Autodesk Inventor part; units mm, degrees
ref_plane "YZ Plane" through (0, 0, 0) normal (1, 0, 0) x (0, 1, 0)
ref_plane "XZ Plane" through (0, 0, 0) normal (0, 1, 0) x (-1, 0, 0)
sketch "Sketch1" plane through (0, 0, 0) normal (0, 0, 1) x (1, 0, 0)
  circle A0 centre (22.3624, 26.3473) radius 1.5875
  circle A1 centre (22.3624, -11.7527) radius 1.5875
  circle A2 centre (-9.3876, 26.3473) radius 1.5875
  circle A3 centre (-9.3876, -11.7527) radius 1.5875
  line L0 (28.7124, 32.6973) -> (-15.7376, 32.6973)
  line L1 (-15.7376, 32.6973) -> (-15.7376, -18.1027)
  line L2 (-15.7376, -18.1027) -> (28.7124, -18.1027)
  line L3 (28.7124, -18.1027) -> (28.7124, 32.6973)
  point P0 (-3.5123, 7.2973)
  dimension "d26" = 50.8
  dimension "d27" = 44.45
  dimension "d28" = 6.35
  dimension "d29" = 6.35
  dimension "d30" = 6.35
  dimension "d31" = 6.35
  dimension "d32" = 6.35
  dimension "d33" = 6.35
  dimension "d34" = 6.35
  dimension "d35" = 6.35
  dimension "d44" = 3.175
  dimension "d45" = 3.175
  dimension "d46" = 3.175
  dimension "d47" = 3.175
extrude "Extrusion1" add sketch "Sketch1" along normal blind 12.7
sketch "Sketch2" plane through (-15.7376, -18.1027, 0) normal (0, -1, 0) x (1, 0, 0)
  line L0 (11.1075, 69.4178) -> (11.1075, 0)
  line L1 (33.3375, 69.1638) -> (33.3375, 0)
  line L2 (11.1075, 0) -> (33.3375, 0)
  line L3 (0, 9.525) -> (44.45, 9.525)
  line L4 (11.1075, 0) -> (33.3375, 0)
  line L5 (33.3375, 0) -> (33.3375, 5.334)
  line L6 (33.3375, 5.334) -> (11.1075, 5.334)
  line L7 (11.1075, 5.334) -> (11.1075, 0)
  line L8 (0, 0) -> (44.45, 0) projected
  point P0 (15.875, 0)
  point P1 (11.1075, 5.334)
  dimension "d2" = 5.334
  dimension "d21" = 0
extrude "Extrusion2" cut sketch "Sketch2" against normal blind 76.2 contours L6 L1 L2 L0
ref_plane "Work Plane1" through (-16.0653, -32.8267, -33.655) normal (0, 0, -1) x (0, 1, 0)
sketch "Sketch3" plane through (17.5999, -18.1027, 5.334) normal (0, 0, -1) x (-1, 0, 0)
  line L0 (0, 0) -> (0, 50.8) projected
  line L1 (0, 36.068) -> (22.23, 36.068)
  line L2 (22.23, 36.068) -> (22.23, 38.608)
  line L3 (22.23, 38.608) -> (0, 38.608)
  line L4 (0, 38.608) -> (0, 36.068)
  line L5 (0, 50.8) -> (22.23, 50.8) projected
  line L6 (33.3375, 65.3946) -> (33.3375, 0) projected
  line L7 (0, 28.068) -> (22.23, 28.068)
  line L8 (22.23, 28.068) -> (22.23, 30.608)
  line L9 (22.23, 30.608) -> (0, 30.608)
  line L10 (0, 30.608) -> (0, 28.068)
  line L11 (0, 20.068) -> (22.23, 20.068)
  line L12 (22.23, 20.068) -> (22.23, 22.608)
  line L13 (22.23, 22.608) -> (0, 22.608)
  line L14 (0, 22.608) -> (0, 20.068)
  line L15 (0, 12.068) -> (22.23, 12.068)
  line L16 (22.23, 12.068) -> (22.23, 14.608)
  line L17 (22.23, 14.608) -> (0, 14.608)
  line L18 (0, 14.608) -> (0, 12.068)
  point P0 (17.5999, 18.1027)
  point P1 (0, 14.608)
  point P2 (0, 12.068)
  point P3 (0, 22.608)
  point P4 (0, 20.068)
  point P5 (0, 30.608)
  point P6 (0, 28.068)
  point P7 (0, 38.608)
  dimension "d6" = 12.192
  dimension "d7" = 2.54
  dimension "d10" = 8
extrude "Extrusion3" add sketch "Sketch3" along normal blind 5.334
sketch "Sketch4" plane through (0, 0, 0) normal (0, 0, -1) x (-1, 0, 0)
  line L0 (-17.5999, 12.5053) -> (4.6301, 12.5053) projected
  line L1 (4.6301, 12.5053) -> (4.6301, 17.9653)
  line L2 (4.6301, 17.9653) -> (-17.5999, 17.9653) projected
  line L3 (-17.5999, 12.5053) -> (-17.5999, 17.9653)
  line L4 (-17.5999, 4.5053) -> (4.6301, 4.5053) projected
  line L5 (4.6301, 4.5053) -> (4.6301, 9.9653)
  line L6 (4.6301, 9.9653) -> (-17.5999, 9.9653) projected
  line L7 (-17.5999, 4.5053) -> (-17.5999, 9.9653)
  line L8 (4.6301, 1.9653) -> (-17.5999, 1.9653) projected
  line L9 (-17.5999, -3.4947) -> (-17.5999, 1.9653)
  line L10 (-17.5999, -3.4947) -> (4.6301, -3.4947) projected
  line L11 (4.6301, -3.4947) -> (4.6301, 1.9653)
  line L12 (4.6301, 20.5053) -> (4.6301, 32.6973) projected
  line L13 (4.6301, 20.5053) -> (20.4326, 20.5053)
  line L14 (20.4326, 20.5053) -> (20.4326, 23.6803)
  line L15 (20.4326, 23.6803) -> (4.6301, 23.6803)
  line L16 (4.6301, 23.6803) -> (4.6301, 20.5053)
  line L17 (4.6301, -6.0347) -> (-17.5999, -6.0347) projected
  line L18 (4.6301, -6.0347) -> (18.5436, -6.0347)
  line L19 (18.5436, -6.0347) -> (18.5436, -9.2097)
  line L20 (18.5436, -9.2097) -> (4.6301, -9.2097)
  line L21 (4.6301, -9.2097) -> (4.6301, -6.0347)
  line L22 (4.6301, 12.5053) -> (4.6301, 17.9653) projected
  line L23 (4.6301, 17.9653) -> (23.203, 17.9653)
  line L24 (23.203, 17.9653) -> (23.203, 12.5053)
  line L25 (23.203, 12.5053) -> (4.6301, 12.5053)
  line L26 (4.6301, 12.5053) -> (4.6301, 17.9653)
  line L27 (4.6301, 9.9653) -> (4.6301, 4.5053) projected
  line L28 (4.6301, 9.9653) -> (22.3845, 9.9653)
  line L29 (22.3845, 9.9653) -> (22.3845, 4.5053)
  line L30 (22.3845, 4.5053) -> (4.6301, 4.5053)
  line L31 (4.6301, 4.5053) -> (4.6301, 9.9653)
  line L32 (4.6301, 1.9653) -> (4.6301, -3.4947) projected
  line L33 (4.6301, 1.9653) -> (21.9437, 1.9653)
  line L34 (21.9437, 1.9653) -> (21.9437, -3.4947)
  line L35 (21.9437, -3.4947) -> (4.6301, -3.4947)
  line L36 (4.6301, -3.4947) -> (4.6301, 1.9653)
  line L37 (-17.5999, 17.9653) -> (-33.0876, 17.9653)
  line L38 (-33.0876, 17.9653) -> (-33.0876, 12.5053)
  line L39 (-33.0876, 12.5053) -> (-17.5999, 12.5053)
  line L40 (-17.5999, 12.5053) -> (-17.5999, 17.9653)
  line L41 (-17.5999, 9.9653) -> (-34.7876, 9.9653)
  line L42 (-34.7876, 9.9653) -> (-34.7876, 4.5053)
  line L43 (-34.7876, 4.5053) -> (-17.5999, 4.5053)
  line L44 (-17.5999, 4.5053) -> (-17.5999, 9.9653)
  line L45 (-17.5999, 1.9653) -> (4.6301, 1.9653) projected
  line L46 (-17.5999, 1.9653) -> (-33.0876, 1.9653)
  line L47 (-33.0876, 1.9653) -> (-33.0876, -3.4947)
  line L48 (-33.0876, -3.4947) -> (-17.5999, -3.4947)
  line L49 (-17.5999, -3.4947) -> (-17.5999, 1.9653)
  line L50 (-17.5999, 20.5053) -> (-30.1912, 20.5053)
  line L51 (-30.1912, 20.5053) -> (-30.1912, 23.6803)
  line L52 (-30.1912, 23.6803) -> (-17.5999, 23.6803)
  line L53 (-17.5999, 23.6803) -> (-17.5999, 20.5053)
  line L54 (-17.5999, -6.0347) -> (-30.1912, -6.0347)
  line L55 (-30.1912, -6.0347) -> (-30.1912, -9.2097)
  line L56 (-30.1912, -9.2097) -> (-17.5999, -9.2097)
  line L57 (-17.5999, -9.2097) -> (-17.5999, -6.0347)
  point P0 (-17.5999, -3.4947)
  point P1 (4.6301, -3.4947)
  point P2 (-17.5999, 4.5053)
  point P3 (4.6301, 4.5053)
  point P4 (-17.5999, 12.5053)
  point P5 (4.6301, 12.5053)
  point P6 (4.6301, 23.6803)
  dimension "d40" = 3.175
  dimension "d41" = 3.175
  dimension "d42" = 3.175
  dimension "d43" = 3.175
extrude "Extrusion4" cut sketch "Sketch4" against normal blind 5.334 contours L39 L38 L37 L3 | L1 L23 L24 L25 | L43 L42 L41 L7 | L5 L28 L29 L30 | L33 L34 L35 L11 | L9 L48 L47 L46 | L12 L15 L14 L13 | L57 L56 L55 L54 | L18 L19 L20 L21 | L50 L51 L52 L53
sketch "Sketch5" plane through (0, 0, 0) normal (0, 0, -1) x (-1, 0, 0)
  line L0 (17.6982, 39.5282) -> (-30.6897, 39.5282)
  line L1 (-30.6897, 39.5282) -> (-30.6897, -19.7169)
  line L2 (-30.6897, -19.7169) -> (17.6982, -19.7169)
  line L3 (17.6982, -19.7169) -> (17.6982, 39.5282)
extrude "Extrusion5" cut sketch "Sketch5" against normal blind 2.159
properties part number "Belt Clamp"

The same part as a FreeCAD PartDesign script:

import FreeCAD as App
import Part
import Sketcher
Q = App.Units.Quantity

doc = App.newDocument("Part")
params = doc.addObject("Spreadsheet::Sheet", "Params")
for row, (alias, value) in enumerate([
    ("sketch1_height", "2 in"),
    ("sketch1_diameter", "0.125 in"),
    ("sketch1_width", "1.75 in"),
    ("pad1_length", "0.5 in"),
    ("sketch2_height", "0.21 in"),
    ("pocket1_length", "3 in"),
    ("sketch3_height", "0.1 in"),
    ("pad2_length", "0.21 in"),
    ("sketch4_height", "0.125 in"),
    ("sketch4_width", "0.699 in"),
    ("pocket2_length", "0.21 in"),
    ("pocket3_length", "0.085 in"),
], start=1):
    params.set(f"A{row}", alias)
    params.set(f"B{row}", "=" + value)
    params.setAlias(f"B{row}", alias)

body = doc.addObject("PartDesign::Body", "Body")

# Sketch on XY plane
sketch1 = doc.addObject("Sketcher::SketchObject", "Sketch")
body.addObject(sketch1)
sketch1.AttachmentSupport = (doc.XY_Plane, [""])
sketch1.MapMode = "FlatFace"
sketch1.addGeometry(Part.LineSegment(App.Vector(28.7124, -18.1027, 0), App.Vector(28.7124, 32.6973, 0)), False)
sketch1.addGeometry(Part.LineSegment(App.Vector(28.7124, 32.6973, 0), App.Vector(-15.7376, 32.6973, 0)), False)
sketch1.addGeometry(Part.LineSegment(App.Vector(-15.7376, 32.6973, 0), App.Vector(-15.7376, -18.1027, 0)), False)
sketch1.addGeometry(Part.LineSegment(App.Vector(-15.7376, -18.1027, 0), App.Vector(28.7124, -18.1027, 0)), False)
sketch1.addGeometry(Part.Circle(App.Vector(-9.3876, -11.7527, 0), App.Vector(0, 0, 1), 1.5875), False)
sketch1.addGeometry(Part.Circle(App.Vector(22.3624, -11.7527, 0), App.Vector(0, 0, 1), 1.5875), False)
sketch1.addGeometry(Part.Circle(App.Vector(-9.3876, 26.3473, 0), App.Vector(0, 0, 1), 1.5875), False)
sketch1.addGeometry(Part.Circle(App.Vector(22.3624, 26.3473, 0), App.Vector(0, 0, 1), 1.5875), False)
sketch1.addConstraint(Sketcher.Constraint("Coincident", 0, 2, 1, 1))
sketch1.addConstraint(Sketcher.Constraint("Coincident", 1, 2, 2, 1))
sketch1.addConstraint(Sketcher.Constraint("Coincident", 2, 2, 3, 1))
sketch1.addConstraint(Sketcher.Constraint("Coincident", 3, 2, 0, 1))
sketch1.addConstraint(Sketcher.Constraint("Vertical", 0))
sketch1.addConstraint(Sketcher.Constraint("Horizontal", 1))
sketch1.addConstraint(Sketcher.Constraint("Vertical", 2))
sketch1.addConstraint(Sketcher.Constraint("Horizontal", 3))
sketch1.addConstraint(Sketcher.Constraint("Equal", 4, 5))
sketch1.addConstraint(Sketcher.Constraint("Equal", 5, 6))
sketch1.addConstraint(Sketcher.Constraint("Equal", 6, 7))
sketch1.addConstraint(Sketcher.Constraint("Horizontal", 4, 3, 5, 3))
sketch1.addConstraint(Sketcher.Constraint("Horizontal", 6, 3, 7, 3))
sketch1.addConstraint(Sketcher.Constraint("Vertical", 4, 3, 6, 3))
sketch1.addConstraint(Sketcher.Constraint("Vertical", 5, 3, 7, 3))
sketch1.addConstraint(Sketcher.Constraint("DistanceY", 0, 1, 0, 2, Q("2 in")))
sketch1.addConstraint(Sketcher.Constraint("Diameter", 4, Q("0.125 in")))
sketch1.addConstraint(Sketcher.Constraint("DistanceX", 1, 2, 1, 1, Q("1.75 in")))
sketch1.addConstraint(Sketcher.Constraint("DistanceX", 7, 3, 0, 2, Q("0.25 in")))
sketch1.addConstraint(Sketcher.Constraint("DistanceY", 7, 3, 0, 2, Q("0.25 in")))
sketch1.addConstraint(Sketcher.Constraint("DistanceY", 5, 3, 0, 2, Q("1.75 in")))
sketch1.addConstraint(Sketcher.Constraint("DistanceX", 1, 2, 6, 3, Q("0.25 in")))
sketch1.addConstraint(Sketcher.Constraint("DistanceX", 4, 3, -1, 1, Q("0.3696 in")))
sketch1.addConstraint(Sketcher.Constraint("DistanceY", 4, 3, -1, 1, Q("0.4627 in")))
sketch1.setExpression("Constraints[15]", "Params.sketch1_height")
sketch1.setExpression("Constraints[16]", "Params.sketch1_diameter")
sketch1.setExpression("Constraints[17]", "Params.sketch1_width")
pad1 = doc.addObject("PartDesign::Pad", "Pad")
body.addObject(pad1)
pad1.Profile = sketch1
pad1.setExpression("Length", "Params.pad1_length")

# Sketch on XZ plane
sketch2 = doc.addObject("Sketcher::SketchObject", "Sketch001")
body.addObject(sketch2)
sketch2.AttachmentSupport = (doc.XZ_Plane, [""])
sketch2.MapMode = "FlatFace"
sketch2.AttachmentOffset = App.Placement(App.Vector(0, 0, 0.7127047 * 25.4), App.Rotation())
sketch2.addGeometry(Part.LineSegment(App.Vector(17.5999, 5.334, 0), App.Vector(-4.6301, 5.334, 0)), False)
sketch2.addGeometry(Part.LineSegment(App.Vector(-4.6301, 5.334, 0), App.Vector(-4.6301, 0, 0)), False)
sketch2.addGeometry(Part.LineSegment(App.Vector(-4.6301, 0, 0), App.Vector(17.5999, 0, 0)), False)
sketch2.addGeometry(Part.LineSegment(App.Vector(17.5999, 0, 0), App.Vector(17.5999, 5.334, 0)), False)
sketch2.addConstraint(Sketcher.Constraint("Coincident", 0, 2, 1, 1))
sketch2.addConstraint(Sketcher.Constraint("Coincident", 1, 2, 2, 1))
sketch2.addConstraint(Sketcher.Constraint("Coincident", 2, 2, 3, 1))
sketch2.addConstraint(Sketcher.Constraint("Coincident", 3, 2, 0, 1))
sketch2.addConstraint(Sketcher.Constraint("Horizontal", 0))
sketch2.addConstraint(Sketcher.Constraint("Vertical", 1))
sketch2.addConstraint(Sketcher.Constraint("Horizontal", 2))
sketch2.addConstraint(Sketcher.Constraint("Vertical", 3))
sketch2.addConstraint(Sketcher.Constraint("PointOnObject", 1, 2, -1))
sketch2.addConstraint(Sketcher.Constraint("DistanceY", 1, 2, 1, 1, Q("0.21 in")))
sketch2.addConstraint(Sketcher.Constraint("DistanceX", 0, 2, 0, 1, Q("0.8752 in")))
sketch2.addConstraint(Sketcher.Constraint("DistanceX", -1, 1, 2, 2, Q("0.6929 in")))
sketch2.setExpression("Constraints[9]", "Params.sketch2_height")
pocket1 = doc.addObject("PartDesign::Pocket", "Pocket")
body.addObject(pocket1)
pocket1.Profile = sketch2
pocket1.setExpression("Length", "Params.pocket1_length")

# Sketch on XY plane
sketch3 = doc.addObject("Sketcher::SketchObject", "Sketch002")
body.addObject(sketch3)
sketch3.AttachmentSupport = (doc.XY_Plane, [""])
sketch3.MapMode = "FlatFace"
sketch3.AttachmentOffset = App.Placement(App.Vector(0, 0, 0.21 * 25.4), App.Rotation())
sketch3.addGeometry(Part.LineSegment(App.Vector(17.5999, 20.5053, 0), App.Vector(17.5999, 17.9653, 0)), False)
sketch3.addGeometry(Part.LineSegment(App.Vector(17.5999, 17.9653, 0), App.Vector(-4.6301, 17.9653, 0)), False)
sketch3.addGeometry(Part.LineSegment(App.Vector(-4.6301, 17.9653, 0), App.Vector(-4.6301, 20.5053, 0)), False)
sketch3.addGeometry(Part.LineSegment(App.Vector(-4.6301, 20.5053, 0), App.Vector(17.5999, 20.5053, 0)), False)
sketch3.addGeometry(Part.LineSegment(App.Vector(17.5999, 12.5053, 0), App.Vector(17.5999, 9.9653, 0)), False)
sketch3.addGeometry(Part.LineSegment(App.Vector(17.5999, 9.9653, 0), App.Vector(-4.6301, 9.9653, 0)), False)
sketch3.addGeometry(Part.LineSegment(App.Vector(-4.6301, 9.9653, 0), App.Vector(-4.6301, 12.5053, 0)), False)
sketch3.addGeometry(Part.LineSegment(App.Vector(-4.6301, 12.5053, 0), App.Vector(17.5999, 12.5053, 0)), False)
sketch3.addGeometry(Part.LineSegment(App.Vector(17.5999, 4.5053, 0), App.Vector(17.5999, 1.9653, 0)), False)
sketch3.addGeometry(Part.LineSegment(App.Vector(17.5999, 1.9653, 0), App.Vector(-4.6301, 1.9653, 0)), False)
sketch3.addGeometry(Part.LineSegment(App.Vector(-4.6301, 1.9653, 0), App.Vector(-4.6301, 4.5053, 0)), False)
sketch3.addGeometry(Part.LineSegment(App.Vector(-4.6301, 4.5053, 0), App.Vector(17.5999, 4.5053, 0)), False)
sketch3.addGeometry(Part.LineSegment(App.Vector(17.5999, -3.4947, 0), App.Vector(17.5999, -6.0347, 0)), False)
sketch3.addGeometry(Part.LineSegment(App.Vector(17.5999, -6.0347, 0), App.Vector(-4.6301, -6.0347, 0)), False)
sketch3.addGeometry(Part.LineSegment(App.Vector(-4.6301, -6.0347, 0), App.Vector(-4.6301, -3.4947, 0)), False)
sketch3.addGeometry(Part.LineSegment(App.Vector(-4.6301, -3.4947, 0), App.Vector(17.5999, -3.4947, 0)), False)
sketch3.addConstraint(Sketcher.Constraint("Coincident", 0, 2, 1, 1))
sketch3.addConstraint(Sketcher.Constraint("Coincident", 1, 2, 2, 1))
sketch3.addConstraint(Sketcher.Constraint("Coincident", 2, 2, 3, 1))
sketch3.addConstraint(Sketcher.Constraint("Coincident", 3, 2, 0, 1))
sketch3.addConstraint(Sketcher.Constraint("Coincident", 4, 2, 5, 1))
sketch3.addConstraint(Sketcher.Constraint("Coincident", 5, 2, 6, 1))
sketch3.addConstraint(Sketcher.Constraint("Coincident", 6, 2, 7, 1))
sketch3.addConstraint(Sketcher.Constraint("Coincident", 7, 2, 4, 1))
sketch3.addConstraint(Sketcher.Constraint("Coincident", 8, 2, 9, 1))
sketch3.addConstraint(Sketcher.Constraint("Coincident", 9, 2, 10, 1))
sketch3.addConstraint(Sketcher.Constraint("Coincident", 10, 2, 11, 1))
sketch3.addConstraint(Sketcher.Constraint("Coincident", 11, 2, 8, 1))
sketch3.addConstraint(Sketcher.Constraint("Coincident", 12, 2, 13, 1))
sketch3.addConstraint(Sketcher.Constraint("Coincident", 13, 2, 14, 1))
sketch3.addConstraint(Sketcher.Constraint("Coincident", 14, 2, 15, 1))
sketch3.addConstraint(Sketcher.Constraint("Coincident", 15, 2, 12, 1))
sketch3.addConstraint(Sketcher.Constraint("Vertical", 0))
sketch3.addConstraint(Sketcher.Constraint("Horizontal", 1))
sketch3.addConstraint(Sketcher.Constraint("Vertical", 2))
sketch3.addConstraint(Sketcher.Constraint("Horizontal", 3))
sketch3.addConstraint(Sketcher.Constraint("Vertical", 4))
sketch3.addConstraint(Sketcher.Constraint("Horizontal", 5))
sketch3.addConstraint(Sketcher.Constraint("Vertical", 6))
sketch3.addConstraint(Sketcher.Constraint("Horizontal", 7))
sketch3.addConstraint(Sketcher.Constraint("Vertical", 8))
sketch3.addConstraint(Sketcher.Constraint("Horizontal", 9))
sketch3.addConstraint(Sketcher.Constraint("Vertical", 10))
sketch3.addConstraint(Sketcher.Constraint("Horizontal", 11))
sketch3.addConstraint(Sketcher.Constraint("Vertical", 12))
sketch3.addConstraint(Sketcher.Constraint("Horizontal", 13))
sketch3.addConstraint(Sketcher.Constraint("Vertical", 14))
sketch3.addConstraint(Sketcher.Constraint("Horizontal", 15))
sketch3.addConstraint(Sketcher.Constraint("Vertical", 3, 2, 4, 2))
sketch3.addConstraint(Sketcher.Constraint("Vertical", 2, 2, 5, 2))
sketch3.addConstraint(Sketcher.Constraint("Vertical", 7, 2, 8, 2))
sketch3.addConstraint(Sketcher.Constraint("Vertical", 6, 2, 9, 2))
sketch3.addConstraint(Sketcher.Constraint("Vertical", 11, 2, 12, 2))
sketch3.addConstraint(Sketcher.Constraint("Vertical", 10, 2, 13, 2))
sketch3.addConstraint(Sketcher.Constraint("Equal", 2, 4))
sketch3.addConstraint(Sketcher.Constraint("Equal", 6, 8))
sketch3.addConstraint(Sketcher.Constraint("Equal", 10, 12))
sketch3.addConstraint(Sketcher.Constraint("DistanceY", 0, 2, 0, 1, Q("0.1 in")))
sketch3.addConstraint(Sketcher.Constraint("DistanceY", 4, 2, 0, 2, 8.0))
sketch3.addConstraint(Sketcher.Constraint("DistanceY", 8, 2, 4, 2, 8.0))
sketch3.addConstraint(Sketcher.Constraint("DistanceY", 12, 2, 8, 2, 8.0))
sketch3.addConstraint(Sketcher.Constraint("DistanceX", 1, 2, 1, 1, Q("0.8752 in")))
sketch3.addConstraint(Sketcher.Constraint("DistanceX", -1, 1, 0, 2, Q("0.6929 in")))
sketch3.addConstraint(Sketcher.Constraint("DistanceY", -1, 1, 0, 2, Q("0.7073 in")))
sketch3.setExpression("Constraints[41]", "Params.sketch3_height")
pad2 = doc.addObject("PartDesign::Pad", "Pad001")
body.addObject(pad2)
pad2.Profile = sketch3
pad2.setExpression("Length", "Params.pad2_length")
pad2.Reversed = True

# Sketch on XY plane
sketch4 = doc.addObject("Sketcher::SketchObject", "Sketch003")
body.addObject(sketch4)
sketch4.AttachmentSupport = (doc.XY_Plane, [""])
sketch4.MapMode = "FlatFace"
sketch4.addGeometry(Part.LineSegment(App.Vector(33.0876, 12.5053, 0), App.Vector(17.5999, 12.5053, 0)), False)
sketch4.addGeometry(Part.LineSegment(App.Vector(17.5999, 12.5053, 0), App.Vector(17.5999, 17.9653, 0)), False)
sketch4.addGeometry(Part.LineSegment(App.Vector(17.5999, 17.9653, 0), App.Vector(33.0876, 17.9653, 0)), False)
sketch4.addGeometry(Part.LineSegment(App.Vector(33.0876, 17.9653, 0), App.Vector(33.0876, 12.5053, 0)), False)
sketch4.addGeometry(Part.LineSegment(App.Vector(-4.6301, 17.9653, 0), App.Vector(-4.6301, 12.5053, 0)), False)
sketch4.addGeometry(Part.LineSegment(App.Vector(-4.6301, 12.5053, 0), App.Vector(-23.203, 12.5053, 0)), False)
sketch4.addGeometry(Part.LineSegment(App.Vector(-23.203, 12.5053, 0), App.Vector(-23.203, 17.9653, 0)), False)
sketch4.addGeometry(Part.LineSegment(App.Vector(-23.203, 17.9653, 0), App.Vector(-4.6301, 17.9653, 0)), False)
sketch4.addGeometry(Part.LineSegment(App.Vector(34.7876, 4.5053, 0), App.Vector(17.5999, 4.5053, 0)), False)
sketch4.addGeometry(Part.LineSegment(App.Vector(17.5999, 4.5053, 0), App.Vector(17.5999, 9.9653, 0)), False)
sketch4.addGeometry(Part.LineSegment(App.Vector(17.5999, 9.9653, 0), App.Vector(34.7876, 9.9653, 0)), False)
sketch4.addGeometry(Part.LineSegment(App.Vector(34.7876, 9.9653, 0), App.Vector(34.7876, 4.5053, 0)), False)
sketch4.addGeometry(Part.LineSegment(App.Vector(-4.6301, 9.9653, 0), App.Vector(-4.6301, 4.5053, 0)), False)
sketch4.addGeometry(Part.LineSegment(App.Vector(-4.6301, 4.5053, 0), App.Vector(-22.3845, 4.5053, 0)), False)
sketch4.addGeometry(Part.LineSegment(App.Vector(-22.3845, 4.5053, 0), App.Vector(-22.3845, 9.9653, 0)), False)
sketch4.addGeometry(Part.LineSegment(App.Vector(-22.3845, 9.9653, 0), App.Vector(-4.6301, 9.9653, 0)), False)
sketch4.addGeometry(Part.LineSegment(App.Vector(-21.9437, 1.9653, 0), App.Vector(-4.6301, 1.9653, 0)), False)
sketch4.addGeometry(Part.LineSegment(App.Vector(-4.6301, 1.9653, 0), App.Vector(-4.6301, -3.4947, 0)), False)
sketch4.addGeometry(Part.LineSegment(App.Vector(-4.6301, -3.4947, 0), App.Vector(-21.9437, -3.4947, 0)), False)
sketch4.addGeometry(Part.LineSegment(App.Vector(-21.9437, -3.4947, 0), App.Vector(-21.9437, 1.9653, 0)), False)
sketch4.addGeometry(Part.LineSegment(App.Vector(17.5999, -3.4947, 0), App.Vector(17.5999, 1.9653, 0)), False)
sketch4.addGeometry(Part.LineSegment(App.Vector(17.5999, 1.9653, 0), App.Vector(33.0876, 1.9653, 0)), False)
sketch4.addGeometry(Part.LineSegment(App.Vector(33.0876, 1.9653, 0), App.Vector(33.0876, -3.4947, 0)), False)
sketch4.addGeometry(Part.LineSegment(App.Vector(33.0876, -3.4947, 0), App.Vector(17.5999, -3.4947, 0)), False)
sketch4.addGeometry(Part.LineSegment(App.Vector(-4.6301, 23.6803, 0), App.Vector(-4.6301, 20.5053, 0)), False)
sketch4.addGeometry(Part.LineSegment(App.Vector(-4.6301, 20.5053, 0), App.Vector(-20.4326, 20.5053, 0)), False)
sketch4.addGeometry(Part.LineSegment(App.Vector(-20.4326, 20.5053, 0), App.Vector(-20.4326, 23.6803, 0)), False)
sketch4.addGeometry(Part.LineSegment(App.Vector(-20.4326, 23.6803, 0), App.Vector(-4.6301, 23.6803, 0)), False)
sketch4.addGeometry(Part.LineSegment(App.Vector(17.5999, -9.2097, 0), App.Vector(17.5999, -6.0347, 0)), False)
sketch4.addGeometry(Part.LineSegment(App.Vector(17.5999, -6.0347, 0), App.Vector(30.1912, -6.0347, 0)), False)
sketch4.addGeometry(Part.LineSegment(App.Vector(30.1912, -6.0347, 0), App.Vector(30.1912, -9.2097, 0)), False)
sketch4.addGeometry(Part.LineSegment(App.Vector(30.1912, -9.2097, 0), App.Vector(17.5999, -9.2097, 0)), False)
sketch4.addGeometry(Part.LineSegment(App.Vector(-18.5436, -6.0347, 0), App.Vector(-4.6301, -6.0347, 0)), False)
sketch4.addGeometry(Part.LineSegment(App.Vector(-4.6301, -6.0347, 0), App.Vector(-4.6301, -9.2097, 0)), False)
sketch4.addGeometry(Part.LineSegment(App.Vector(-4.6301, -9.2097, 0), App.Vector(-18.5436, -9.2097, 0)), False)
sketch4.addGeometry(Part.LineSegment(App.Vector(-18.5436, -9.2097, 0), App.Vector(-18.5436, -6.0347, 0)), False)
sketch4.addGeometry(Part.LineSegment(App.Vector(30.1912, 20.5053, 0), App.Vector(17.5999, 20.5053, 0)), False)
sketch4.addGeometry(Part.LineSegment(App.Vector(17.5999, 20.5053, 0), App.Vector(17.5999, 23.6803, 0)), False)
sketch4.addGeometry(Part.LineSegment(App.Vector(17.5999, 23.6803, 0), App.Vector(30.1912, 23.6803, 0)), False)
sketch4.addGeometry(Part.LineSegment(App.Vector(30.1912, 23.6803, 0), App.Vector(30.1912, 20.5053, 0)), False)
sketch4.addConstraint(Sketcher.Constraint("Coincident", 0, 2, 1, 1))
sketch4.addConstraint(Sketcher.Constraint("Coincident", 1, 2, 2, 1))
sketch4.addConstraint(Sketcher.Constraint("Coincident", 2, 2, 3, 1))
sketch4.addConstraint(Sketcher.Constraint("Coincident", 3, 2, 0, 1))
sketch4.addConstraint(Sketcher.Constraint("Coincident", 4, 2, 5, 1))
sketch4.addConstraint(Sketcher.Constraint("Coincident", 5, 2, 6, 1))
sketch4.addConstraint(Sketcher.Constraint("Coincident", 6, 2, 7, 1))
sketch4.addConstraint(Sketcher.Constraint("Coincident", 7, 2, 4, 1))
sketch4.addConstraint(Sketcher.Constraint("Coincident", 8, 2, 9, 1))
sketch4.addConstraint(Sketcher.Constraint("Coincident", 9, 2, 10, 1))
sketch4.addConstraint(Sketcher.Constraint("Coincident", 10, 2, 11, 1))
sketch4.addConstraint(Sketcher.Constraint("Coincident", 11, 2, 8, 1))
sketch4.addConstraint(Sketcher.Constraint("Coincident", 12, 2, 13, 1))
sketch4.addConstraint(Sketcher.Constraint("Coincident", 13, 2, 14, 1))
sketch4.addConstraint(Sketcher.Constraint("Coincident", 14, 2, 15, 1))
sketch4.addConstraint(Sketcher.Constraint("Coincident", 15, 2, 12, 1))
sketch4.addConstraint(Sketcher.Constraint("Coincident", 16, 2, 17, 1))
sketch4.addConstraint(Sketcher.Constraint("Coincident", 17, 2, 18, 1))
sketch4.addConstraint(Sketcher.Constraint("Coincident", 18, 2, 19, 1))
sketch4.addConstraint(Sketcher.Constraint("Coincident", 19, 2, 16, 1))
sketch4.addConstraint(Sketcher.Constraint("Coincident", 20, 2, 21, 1))
sketch4.addConstraint(Sketcher.Constraint("Coincident", 21, 2, 22, 1))
sketch4.addConstraint(Sketcher.Constraint("Coincident", 22, 2, 23, 1))
sketch4.addConstraint(Sketcher.Constraint("Coincident", 23, 2, 20, 1))
sketch4.addConstraint(Sketcher.Constraint("Coincident", 24, 2, 25, 1))
sketch4.addConstraint(Sketcher.Constraint("Coincident", 25, 2, 26, 1))
sketch4.addConstraint(Sketcher.Constraint("Coincident", 26, 2, 27, 1))
sketch4.addConstraint(Sketcher.Constraint("Coincident", 27, 2, 24, 1))
sketch4.addConstraint(Sketcher.Constraint("Coincident", 28, 2, 29, 1))
sketch4.addConstraint(Sketcher.Constraint("Coincident", 29, 2, 30, 1))
sketch4.addConstraint(Sketcher.Constraint("Coincident", 30, 2, 31, 1))
sketch4.addConstraint(Sketcher.Constraint("Coincident", 31, 2, 28, 1))
sketch4.addConstraint(Sketcher.Constraint("Coincident", 32, 2, 33, 1))
sketch4.addConstraint(Sketcher.Constraint("Coincident", 33, 2, 34, 1))
sketch4.addConstraint(Sketcher.Constraint("Coincident", 34, 2, 35, 1))
sketch4.addConstraint(Sketcher.Constraint("Coincident", 35, 2, 32, 1))
sketch4.addConstraint(Sketcher.Constraint("Coincident", 36, 2, 37, 1))
sketch4.addConstraint(Sketcher.Constraint("Coincident", 37, 2, 38, 1))
sketch4.addConstraint(Sketcher.Constraint("Coincident", 38, 2, 39, 1))
sketch4.addConstraint(Sketcher.Constraint("Coincident", 39, 2, 36, 1))
sketch4.addConstraint(Sketcher.Constraint("Horizontal", 0))
sketch4.addConstraint(Sketcher.Constraint("Vertical", 1))
sketch4.addConstraint(Sketcher.Constraint("Horizontal", 2))
sketch4.addConstraint(Sketcher.Constraint("Vertical", 3))
sketch4.addConstraint(Sketcher.Constraint("Vertical", 4))
sketch4.addConstraint(Sketcher.Constraint("Horizontal", 5))
sketch4.addConstraint(Sketcher.Constraint("Vertical", 6))
sketch4.addConstraint(Sketcher.Constraint("Horizontal", 7))
sketch4.addConstraint(Sketcher.Constraint("Horizontal", 8))
sketch4.addConstraint(Sketcher.Constraint("Vertical", 9))
sketch4.addConstraint(Sketcher.Constraint("Horizontal", 10))
sketch4.addConstraint(Sketcher.Constraint("Vertical", 11))
sketch4.addConstraint(Sketcher.Constraint("Vertical", 12))
sketch4.addConstraint(Sketcher.Constraint("Horizontal", 13))
sketch4.addConstraint(Sketcher.Constraint("Vertical", 14))
sketch4.addConstraint(Sketcher.Constraint("Horizontal", 15))
sketch4.addConstraint(Sketcher.Constraint("Horizontal", 16))
sketch4.addConstraint(Sketcher.Constraint("Vertical", 17))
sketch4.addConstraint(Sketcher.Constraint("Horizontal", 18))
sketch4.addConstraint(Sketcher.Constraint("Vertical", 19))
sketch4.addConstraint(Sketcher.Constraint("Vertical", 20))
sketch4.addConstraint(Sketcher.Constraint("Horizontal", 21))
sketch4.addConstraint(Sketcher.Constraint("Vertical", 22))
sketch4.addConstraint(Sketcher.Constraint("Horizontal", 23))
sketch4.addConstraint(Sketcher.Constraint("Vertical", 24))
sketch4.addConstraint(Sketcher.Constraint("Horizontal", 25))
sketch4.addConstraint(Sketcher.Constraint("Vertical", 26))
sketch4.addConstraint(Sketcher.Constraint("Horizontal", 27))
sketch4.addConstraint(Sketcher.Constraint("Vertical", 28))
sketch4.addConstraint(Sketcher.Constraint("Horizontal", 29))
sketch4.addConstraint(Sketcher.Constraint("Vertical", 30))
sketch4.addConstraint(Sketcher.Constraint("Horizontal", 31))
sketch4.addConstraint(Sketcher.Constraint("Horizontal", 32))
sketch4.addConstraint(Sketcher.Constraint("Vertical", 33))
sketch4.addConstraint(Sketcher.Constraint("Horizontal", 34))
sketch4.addConstraint(Sketcher.Constraint("Vertical", 35))
sketch4.addConstraint(Sketcher.Constraint("Horizontal", 36))
sketch4.addConstraint(Sketcher.Constraint("Vertical", 37))
sketch4.addConstraint(Sketcher.Constraint("Horizontal", 38))
sketch4.addConstraint(Sketcher.Constraint("Vertical", 39))
sketch4.addConstraint(Sketcher.Constraint("Horizontal", 3, 2, 4, 2))
sketch4.addConstraint(Sketcher.Constraint("Horizontal", 2, 2, 6, 2))
sketch4.addConstraint(Sketcher.Constraint("Horizontal", 11, 2, 12, 2))
sketch4.addConstraint(Sketcher.Constraint("Horizontal", 10, 2, 14, 2))
sketch4.addConstraint(Sketcher.Constraint("Horizontal", 19, 2, 20, 2))
sketch4.addConstraint(Sketcher.Constraint("Horizontal", 18, 2, 22, 2))
sketch4.addConstraint(Sketcher.Constraint("Horizontal", 29, 2, 32, 2))
sketch4.addConstraint(Sketcher.Constraint("Horizontal", 31, 2, 33, 2))
sketch4.addConstraint(Sketcher.Constraint("Horizontal", 25, 2, 36, 2))
sketch4.addConstraint(Sketcher.Constraint("Horizontal", 27, 2, 37, 2))
sketch4.addConstraint(Sketcher.Constraint("Vertical", 1, 2, 8, 2))
sketch4.addConstraint(Sketcher.Constraint("Vertical", 7, 2, 12, 2))
sketch4.addConstraint(Sketcher.Constraint("Vertical", 15, 2, 16, 2))
sketch4.addConstraint(Sketcher.Constraint("Vertical", 9, 2, 20, 2))
sketch4.addConstraint(Sketcher.Constraint("Vertical", 3, 2, 21, 2))
sketch4.addConstraint(Sketcher.Constraint("Vertical", 17, 2, 24, 2))
sketch4.addConstraint(Sketcher.Constraint("Vertical", 23, 2, 28, 2))
sketch4.addConstraint(Sketcher.Constraint("Vertical", 27, 2, 32, 2))
sketch4.addConstraint(Sketcher.Constraint("Vertical", 31, 2, 36, 2))
sketch4.addConstraint(Sketcher.Constraint("Vertical", 30, 2, 38, 2))
sketch4.addConstraint(Sketcher.Constraint("Equal", 6, 9))
sketch4.addConstraint(Sketcher.Constraint("Equal", 14, 17))
sketch4.addConstraint(Sketcher.Constraint("Equal", 26, 28))
sketch4.addConstraint(Sketcher.Constraint("DistanceY", 24, 2, 24, 1, Q("0.125 in")))
sketch4.addConstraint(Sketcher.Constraint("DistanceY", 9, 2, 0, 2, Q("0.1 in")))
sketch4.addConstraint(Sketcher.Constraint("DistanceY", 16, 2, 12, 2, Q("0.1 in")))
sketch4.addConstraint(Sketcher.Constraint("DistanceY", 7, 2, 24, 2, Q("0.1 in")))
sketch4.addConstraint(Sketcher.Constraint("DistanceY", 28, 2, 23, 2, Q("0.1 in")))
sketch4.addConstraint(Sketcher.Constraint("DistanceX", 13, 2, 13, 1, Q("0.699 in")))
sketch4.addConstraint(Sketcher.Constraint("DistanceX", 0, 2, 0, 1, 15.4877))
sketch4.addConstraint(Sketcher.Constraint("DistanceX", 5, 2, 5, 1, 18.573))
sketch4.addConstraint(Sketcher.Constraint("DistanceX", 8, 2, 8, 1, 17.1877))
sketch4.addConstraint(Sketcher.Constraint("DistanceX", 16, 1, 16, 2, 17.3136))
sketch4.addConstraint(Sketcher.Constraint("DistanceX", 25, 2, 25, 1, 15.8025))
sketch4.addConstraint(Sketcher.Constraint("DistanceX", 29, 1, 29, 2, 12.5913))
sketch4.addConstraint(Sketcher.Constraint("DistanceX", 32, 1, 32, 2, 13.9135))
sketch4.addConstraint(Sketcher.Constraint("DistanceY", 1, 1, 1, 2, 5.46))
sketch4.addConstraint(Sketcher.Constraint("DistanceX", -1, 1, 0, 2, Q("0.6929 in")))
sketch4.addConstraint(Sketcher.Constraint("DistanceY", -1, 1, 1, 2, Q("0.7073 in")))
sketch4.addConstraint(Sketcher.Constraint("DistanceX", 5, 2, -1, 1, Q("0.9135 in")))
sketch4.setExpression("Constraints[103]", "Params.sketch4_height")
sketch4.setExpression("Constraints[108]", "Params.sketch4_width")
pocket2 = doc.addObject("PartDesign::Pocket", "Pocket001")
body.addObject(pocket2)
pocket2.Profile = sketch4
pocket2.setExpression("Length", "Params.pocket2_length")
pocket2.Reversed = True

# Sketch on XY plane
sketch5 = doc.addObject("Sketcher::SketchObject", "Sketch004")
body.addObject(sketch5)
sketch5.AttachmentSupport = (doc.XY_Plane, [""])
sketch5.MapMode = "FlatFace"
sketch5.addGeometry(Part.LineSegment(App.Vector(-17.6982, -19.7169, 0), App.Vector(-17.6982, 39.5282, 0)), False)
sketch5.addGeometry(Part.LineSegment(App.Vector(-17.6982, 39.5282, 0), App.Vector(30.6897, 39.5282, 0)), False)
sketch5.addGeometry(Part.LineSegment(App.Vector(30.6897, 39.5282, 0), App.Vector(30.6897, -19.7169, 0)), False)
sketch5.addGeometry(Part.LineSegment(App.Vector(30.6897, -19.7169, 0), App.Vector(-17.6982, -19.7169, 0)), False)
sketch5.addConstraint(Sketcher.Constraint("Coincident", 0, 2, 1, 1))
sketch5.addConstraint(Sketcher.Constraint("Coincident", 1, 2, 2, 1))
sketch5.addConstraint(Sketcher.Constraint("Coincident", 2, 2, 3, 1))
sketch5.addConstraint(Sketcher.Constraint("Coincident", 3, 2, 0, 1))
sketch5.addConstraint(Sketcher.Constraint("Vertical", 0))
sketch5.addConstraint(Sketcher.Constraint("Horizontal", 1))
sketch5.addConstraint(Sketcher.Constraint("Vertical", 2))
sketch5.addConstraint(Sketcher.Constraint("Horizontal", 3))
sketch5.addConstraint(Sketcher.Constraint("DistanceX", 1, 1, 1, 2, 48.388))
sketch5.addConstraint(Sketcher.Constraint("DistanceY", 0, 1, 0, 2, 59.245))
sketch5.addConstraint(Sketcher.Constraint("DistanceX", 0, 2, -1, 1, 17.6982))
sketch5.addConstraint(Sketcher.Constraint("DistanceY", -1, 1, 0, 2, 39.5282))
pocket3 = doc.addObject("PartDesign::Pocket", "Pocket002")
body.addObject(pocket3)
pocket3.Profile = sketch5
pocket3.setExpression("Length", "Params.pocket3_length")
pocket3.Reversed = True

doc.recompute()
